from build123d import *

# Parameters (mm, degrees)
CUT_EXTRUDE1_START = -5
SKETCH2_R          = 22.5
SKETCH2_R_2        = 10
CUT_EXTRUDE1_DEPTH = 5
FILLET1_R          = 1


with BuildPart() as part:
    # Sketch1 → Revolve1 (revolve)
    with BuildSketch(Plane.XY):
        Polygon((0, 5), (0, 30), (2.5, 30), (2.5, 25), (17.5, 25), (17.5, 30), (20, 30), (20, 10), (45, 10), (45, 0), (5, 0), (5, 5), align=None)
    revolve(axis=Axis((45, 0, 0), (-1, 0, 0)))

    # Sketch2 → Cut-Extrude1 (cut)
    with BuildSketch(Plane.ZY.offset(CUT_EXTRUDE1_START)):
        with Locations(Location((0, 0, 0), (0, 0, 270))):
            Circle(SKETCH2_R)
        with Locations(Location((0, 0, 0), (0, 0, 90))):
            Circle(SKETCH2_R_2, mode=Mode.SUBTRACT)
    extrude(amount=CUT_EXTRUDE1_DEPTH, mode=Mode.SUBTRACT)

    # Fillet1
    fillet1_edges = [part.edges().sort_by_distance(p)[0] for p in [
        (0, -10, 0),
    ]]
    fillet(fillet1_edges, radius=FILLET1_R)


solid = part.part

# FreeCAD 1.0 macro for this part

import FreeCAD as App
import Part
import Sketcher
from FreeCAD import Vector


def edges_at(feature, points):
    """Names of the edges that pass closest to the given points."""
    edges = feature.Shape.Edges
    near = lambda p: min(range(len(edges)), key=lambda i: edges[i].distToShape(Part.Vertex(*p))[0])
    return sorted({f"Edge{near(p) + 1}" for p in points})

doc = App.newDocument("Part")
body = doc.addObject("PartDesign::Body", "Body")

# Sketch on XY plane
sketch1 = body.newObject("Sketcher::SketchObject", "Sketch")
sketch1.AttachmentSupport = (doc.getObject("XY_Plane"), [""])
sketch1.MapMode = "FlatFace"
sketch1.addGeometry(Part.LineSegment(Vector(0, 30, 0), Vector(0, 5, 0)), False)
sketch1.addGeometry(Part.LineSegment(Vector(0, 5, 0), Vector(5, 5, 0)), False)
sketch1.addGeometry(Part.LineSegment(Vector(5, 5, 0), Vector(5, 0, 0)), False)
sketch1.addGeometry(Part.LineSegment(Vector(5, 0, 0), Vector(45, 0, 0)), False)
sketch1.addGeometry(Part.LineSegment(Vector(45, 0, 0), Vector(45, 10, 0)), False)
sketch1.addGeometry(Part.LineSegment(Vector(45, 10, 0), Vector(20, 10, 0)), False)
sketch1.addGeometry(Part.LineSegment(Vector(20, 10, 0), Vector(20, 30, 0)), False)
sketch1.addGeometry(Part.LineSegment(Vector(20, 30, 0), Vector(17.5, 30, 0)), False)
sketch1.addGeometry(Part.LineSegment(Vector(17.5, 30, 0), Vector(17.5, 25, 0)), False)
sketch1.addGeometry(Part.LineSegment(Vector(17.5, 25, 0), Vector(2.5, 25, 0)), False)
sketch1.addGeometry(Part.LineSegment(Vector(2.5, 25, 0), Vector(2.5, 30, 0)), False)
sketch1.addGeometry(Part.LineSegment(Vector(2.5, 30, 0), Vector(0, 30, 0)), False)
sketch1.addConstraint(Sketcher.Constraint("Coincident", 0, 2, 1, 1))
sketch1.addConstraint(Sketcher.Constraint("Coincident", 1, 2, 2, 1))
sketch1.addConstraint(Sketcher.Constraint("Coincident", 2, 2, 3, 1))
sketch1.addConstraint(Sketcher.Constraint("Coincident", 3, 2, 4, 1))
sketch1.addConstraint(Sketcher.Constraint("Coincident", 4, 2, 5, 1))
sketch1.addConstraint(Sketcher.Constraint("Coincident", 5, 2, 6, 1))
sketch1.addConstraint(Sketcher.Constraint("Coincident", 6, 2, 7, 1))
sketch1.addConstraint(Sketcher.Constraint("Coincident", 7, 2, 8, 1))
sketch1.addConstraint(Sketcher.Constraint("Coincident", 8, 2, 9, 1))
sketch1.addConstraint(Sketcher.Constraint("Coincident", 9, 2, 10, 1))
sketch1.addConstraint(Sketcher.Constraint("Coincident", 10, 2, 11, 1))
sketch1.addConstraint(Sketcher.Constraint("Coincident", 11, 2, 0, 1))
sketch1.addConstraint(Sketcher.Constraint("Vertical", 0))
sketch1.addConstraint(Sketcher.Constraint("Horizontal", 1))
sketch1.addConstraint(Sketcher.Constraint("Vertical", 2))
sketch1.addConstraint(Sketcher.Constraint("Horizontal", 3))
sketch1.addConstraint(Sketcher.Constraint("Vertical", 4))
sketch1.addConstraint(Sketcher.Constraint("Horizontal", 5))
sketch1.addConstraint(Sketcher.Constraint("Vertical", 6))
sketch1.addConstraint(Sketcher.Constraint("Horizontal", 7))
sketch1.addConstraint(Sketcher.Constraint("Vertical", 8))
sketch1.addConstraint(Sketcher.Constraint("Horizontal", 9))
sketch1.addConstraint(Sketcher.Constraint("Vertical", 10))
sketch1.addConstraint(Sketcher.Constraint("Horizontal", 11))
sketch1.addConstraint(Sketcher.Constraint("PointOnObject", 0, 2, -2))
sketch1.addConstraint(Sketcher.Constraint("PointOnObject", 2, 2, -1))
sketch1.addConstraint(Sketcher.Constraint("Horizontal", 7, 2, 10, 2))
sketch1.addConstraint(Sketcher.Constraint("Equal", 7, 11))
sketch1.addConstraint(Sketcher.Constraint("Equal", 5, 0))
sketch1.addConstraint(Sketcher.Constraint("Equal", 1, 2))
sketch1.addConstraint(Sketcher.Constraint("Equal", 2, 8))
sketch1.addConstraint(Sketcher.Constraint("DistanceX", 1, 1, 1, 2, 5.0))
sketch1.addConstraint(Sketcher.Constraint("DistanceX", 3, 1, 3, 2, 40.0))
sketch1.addConstraint(Sketcher.Constraint("DistanceX", 5, 2, 5, 1, 25.0))
sketch1.addConstraint(Sketcher.Constraint("DistanceX", 9, 2, 9, 1, 15.0))
sketch1.addConstraint(Sketcher.Constraint("DistanceY", 4, 1, 4, 2, 10.0))
revolution = body.newObject("PartDesign::Revolution", "Revolution")
revolution.Profile = sketch1
revolution.ReferenceAxis = (sketch1, ["H_Axis"])
revolution.Angle = 360

# Sketch on YZ plane
sketch2 = body.newObject("Sketcher::SketchObject", "Sketch001")
sketch2.AttachmentSupport = (doc.getObject("YZ_Plane"), [""])
sketch2.MapMode = "FlatFace"
sketch2.AttachmentOffset = App.Placement(Vector(0, 0, 5), App.Rotation())
sketch2.addGeometry(Part.Circle(Vector(0, 0, 0), Vector(0, 0, 1), 22.5), False)
sketch2.addGeometry(Part.Circle(Vector(0, 0, 0), Vector(0, 0, 1), 10), False)
sketch2.addConstraint(Sketcher.Constraint("Coincident", 0, 3, -1, 1))
sketch2.addConstraint(Sketcher.Constraint("Coincident", 1, 3, -1, 1))
sketch2.addConstraint(Sketcher.Constraint("Diameter", 0, 45.0))
sketch2.addConstraint(Sketcher.Constraint("Diameter", 1, 20.0))
pocket1 = body.newObject("PartDesign::Pocket", "Pocket")
pocket1.Profile = sketch2
pocket1.Length = 5
doc.recompute()

fillet = body.newObject("PartDesign::Fillet", "Fillet")
fillet.Base = (pocket1, edges_at(pocket1, [(0, -10, 0)]))
fillet.Radius = 1

doc.recompute()
